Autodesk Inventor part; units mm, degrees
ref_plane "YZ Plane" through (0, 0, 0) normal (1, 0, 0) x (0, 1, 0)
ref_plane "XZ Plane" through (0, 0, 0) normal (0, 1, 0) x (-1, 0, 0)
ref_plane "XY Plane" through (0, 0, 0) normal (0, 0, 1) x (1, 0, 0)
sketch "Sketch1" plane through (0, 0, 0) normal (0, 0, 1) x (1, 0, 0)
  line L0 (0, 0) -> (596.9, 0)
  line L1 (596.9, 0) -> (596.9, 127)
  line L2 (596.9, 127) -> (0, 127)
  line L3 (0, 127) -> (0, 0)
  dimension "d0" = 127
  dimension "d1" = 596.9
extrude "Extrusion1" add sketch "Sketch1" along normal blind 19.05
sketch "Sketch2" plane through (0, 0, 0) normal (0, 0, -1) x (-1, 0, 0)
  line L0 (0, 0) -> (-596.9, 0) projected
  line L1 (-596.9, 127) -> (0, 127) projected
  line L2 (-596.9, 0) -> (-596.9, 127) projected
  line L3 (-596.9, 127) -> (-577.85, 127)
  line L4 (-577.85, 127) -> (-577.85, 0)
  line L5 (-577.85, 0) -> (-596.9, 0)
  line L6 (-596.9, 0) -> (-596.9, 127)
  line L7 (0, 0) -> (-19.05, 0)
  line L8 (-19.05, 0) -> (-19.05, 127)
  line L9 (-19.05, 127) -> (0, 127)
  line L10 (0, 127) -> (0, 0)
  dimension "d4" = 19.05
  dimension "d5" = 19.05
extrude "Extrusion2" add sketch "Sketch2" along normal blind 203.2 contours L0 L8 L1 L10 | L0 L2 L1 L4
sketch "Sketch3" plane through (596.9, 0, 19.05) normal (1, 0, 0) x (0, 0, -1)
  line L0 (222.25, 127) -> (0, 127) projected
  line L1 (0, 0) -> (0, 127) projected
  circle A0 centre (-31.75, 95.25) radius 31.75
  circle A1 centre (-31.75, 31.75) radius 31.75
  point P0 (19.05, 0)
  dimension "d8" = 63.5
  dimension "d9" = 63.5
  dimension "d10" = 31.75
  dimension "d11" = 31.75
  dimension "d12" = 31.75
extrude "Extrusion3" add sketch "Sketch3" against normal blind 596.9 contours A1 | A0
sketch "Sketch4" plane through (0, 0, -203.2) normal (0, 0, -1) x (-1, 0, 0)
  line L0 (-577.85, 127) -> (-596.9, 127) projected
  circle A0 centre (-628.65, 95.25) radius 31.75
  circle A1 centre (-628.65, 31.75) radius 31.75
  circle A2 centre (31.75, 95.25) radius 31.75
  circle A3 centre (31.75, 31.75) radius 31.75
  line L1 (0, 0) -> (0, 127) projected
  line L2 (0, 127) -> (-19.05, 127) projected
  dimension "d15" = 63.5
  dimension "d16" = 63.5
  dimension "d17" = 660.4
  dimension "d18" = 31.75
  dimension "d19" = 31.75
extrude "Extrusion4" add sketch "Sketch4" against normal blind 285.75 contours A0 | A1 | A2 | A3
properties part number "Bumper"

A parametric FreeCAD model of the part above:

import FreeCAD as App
import Part
import Sketcher

V = App.Vector
Q = App.Units.Quantity

doc = App.newDocument("Part")
params = doc.addObject("Spreadsheet::Sheet", "Params")
for row, (alias, value) in enumerate([
    ("sketch1_height", "5 in"),
    ("sketch1_width", "23.5 in"),
    ("pad1_length", "0.75 in"),
    ("sketch2_width", "0.75 in"),
    ("sketch2_height", "5 in"),
    ("pad2_length", "8 in"),
    ("sketch3_diameter", "2.5 in"),
    ("pad3_length", "23.5 in"),
    ("sketch4_diameter", "2.5 in"),
    ("pad4_length", "11.25 in"),
], start=1):
    params.set(f"A{row}", alias)
    params.set(f"B{row}", "=" + value)
    params.setAlias(f"B{row}", alias)

body = doc.addObject("PartDesign::Body", "Body")
body.AllowCompound = True

sketch1 = doc.addObject("Sketcher::SketchObject", "Sketch")
body.addObject(sketch1)
sketch1.AttachmentSupport = (doc.XY_Plane, [""])
sketch1.MapMode = "FlatFace"
sketch1.addGeometry(Part.LineSegment(V(0, 127, 0), V(0, 0, 0)), False)
sketch1.addGeometry(Part.LineSegment(V(0, 0, 0), V(597, 0, 0)), False)
sketch1.addGeometry(Part.LineSegment(V(597, 0, 0), V(597, 127, 0)), False)
sketch1.addGeometry(Part.LineSegment(V(597, 127, 0), V(0, 127, 0)), False)
sketch1.addConstraint(Sketcher.Constraint("Coincident", 0, 2, 1, 1))
sketch1.addConstraint(Sketcher.Constraint("Coincident", 1, 2, 2, 1))
sketch1.addConstraint(Sketcher.Constraint("Coincident", 2, 2, 3, 1))
sketch1.addConstraint(Sketcher.Constraint("Coincident", 3, 2, 0, 1))
sketch1.addConstraint(Sketcher.Constraint("Vertical", 0))
sketch1.addConstraint(Sketcher.Constraint("Horizontal", 1))
sketch1.addConstraint(Sketcher.Constraint("Vertical", 2))
sketch1.addConstraint(Sketcher.Constraint("Horizontal", 3))
sketch1.addConstraint(Sketcher.Constraint("Coincident", 0, 2, -1, 1))
sketch1.addConstraint(Sketcher.Constraint("DistanceY", 0, 2, 0, 1, Q("5 in")))
sketch1.addConstraint(Sketcher.Constraint("DistanceX", 1, 1, 1, 2, Q("23.5 in")))
sketch1.setExpression("Constraints[9]", "Params.sketch1_height")
sketch1.setExpression("Constraints[10]", "Params.sketch1_width")
pad1 = doc.addObject("PartDesign::Pad", "Pad")
body.addObject(pad1)
pad1.Profile = sketch1
pad1.setExpression("Length", "Params.pad1_length")

sketch2 = doc.addObject("Sketcher::SketchObject", "Sketch001")
body.addObject(sketch2)
sketch2.AttachmentSupport = (doc.XY_Plane, [""])
sketch2.MapMode = "FlatFace"
sketch2.addGeometry(Part.LineSegment(V(19, 0, 0), V(0, 0, 0)), False)
sketch2.addGeometry(Part.LineSegment(V(0, 0, 0), V(0, 127, 0)), False)
sketch2.addGeometry(Part.LineSegment(V(0, 127, 0), V(19, 127, 0)), False)
sketch2.addGeometry(Part.LineSegment(V(19, 127, 0), V(19, 0, 0)), False)
sketch2.addGeometry(Part.LineSegment(V(597, 0, 0), V(578, 0, 0)), False)
sketch2.addGeometry(Part.LineSegment(V(578, 0, 0), V(578, 127, 0)), False)
sketch2.addGeometry(Part.LineSegment(V(578, 127, 0), V(597, 127, 0)), False)
sketch2.addGeometry(Part.LineSegment(V(597, 127, 0), V(597, 0, 0)), False)
sketch2.addConstraint(Sketcher.Constraint("Coincident", 0, 2, 1, 1))
sketch2.addConstraint(Sketcher.Constraint("Coincident", 1, 2, 2, 1))
sketch2.addConstraint(Sketcher.Constraint("Coincident", 2, 2, 3, 1))
sketch2.addConstraint(Sketcher.Constraint("Coincident", 3, 2, 0, 1))
sketch2.addConstraint(Sketcher.Constraint("Coincident", 4, 2, 5, 1))
sketch2.addConstraint(Sketcher.Constraint("Coincident", 5, 2, 6, 1))
sketch2.addConstraint(Sketcher.Constraint("Coincident", 6, 2, 7, 1))
sketch2.addConstraint(Sketcher.Constraint("Coincident", 7, 2, 4, 1))
sketch2.addConstraint(Sketcher.Constraint("Horizontal", 0))
sketch2.addConstraint(Sketcher.Constraint("Vertical", 1))
sketch2.addConstraint(Sketcher.Constraint("Horizontal", 2))
sketch2.addConstraint(Sketcher.Constraint("Vertical", 3))
sketch2.addConstraint(Sketcher.Constraint("Horizontal", 4))
sketch2.addConstraint(Sketcher.Constraint("Vertical", 5))
sketch2.addConstraint(Sketcher.Constraint("Horizontal", 6))
sketch2.addConstraint(Sketcher.Constraint("Vertical", 7))
sketch2.addConstraint(Sketcher.Constraint("Coincident", 0, 2, -1, 1))
sketch2.addConstraint(Sketcher.Constraint("PointOnObject", 4, 2, -1))
sketch2.addConstraint(Sketcher.Constraint("Horizontal", 2, 2, 5, 2))
sketch2.addConstraint(Sketcher.Constraint("Equal", 2, 4))
sketch2.addConstraint(Sketcher.Constraint("DistanceX", 0, 2, 0, 1, Q("0.75 in")))
sketch2.addConstraint(Sketcher.Constraint("DistanceY", 1, 1, 1, 2, Q("5 in")))
sketch2.addConstraint(Sketcher.Constraint("DistanceX", 3, 2, 4, 2, Q("22 in")))
sketch2.setExpression("Constraints[20]", "Params.sketch2_width")
sketch2.setExpression("Constraints[21]", "Params.sketch2_height")
pad2 = doc.addObject("PartDesign::Pad", "Pad001")
body.addObject(pad2)
pad2.Profile = sketch2
pad2.setExpression("Length", "Params.pad2_length")
pad2.Reversed = True

sketch3 = doc.addObject("Sketcher::SketchObject", "Sketch002")
body.addObject(sketch3)
sketch3.AttachmentSupport = (doc.YZ_Plane, [""])
sketch3.MapMode = "FlatFace"
sketch3.AttachmentOffset = App.Placement(V(0, 0, 23.5 * 25.4), App.Rotation())
sketch3.addGeometry(Part.Circle(V(32, 51, 0), V(0, 0, 1), 32), False)
sketch3.addGeometry(Part.Circle(V(95, 51, 0), V(0, 0, 1), 32), False)
sketch3.addConstraint(Sketcher.Constraint("Equal", 0, 1))
sketch3.addConstraint(Sketcher.Constraint("Horizontal", 0, 3, 1, 3))
sketch3.addConstraint(Sketcher.Constraint("Diameter", 0, Q("2.5 in")))
sketch3.addConstraint(Sketcher.Constraint("DistanceX", 0, 3, 1, 3, Q("2.5 in")))
sketch3.addConstraint(Sketcher.Constraint("DistanceX", -1, 1, 0, 3, Q("1.25 in")))
sketch3.addConstraint(Sketcher.Constraint("DistanceY", -1, 1, 0, 3, Q("2 in")))
sketch3.setExpression("Constraints[2]", "Params.sketch3_diameter")
pad3 = doc.addObject("PartDesign::Pad", "Pad002")
body.addObject(pad3)
pad3.Profile = sketch3
pad3.setExpression("Length", "Params.pad3_length")
pad3.Reversed = True

sketch4 = doc.addObject("Sketcher::SketchObject", "Sketch003")
body.addObject(sketch4)
sketch4.AttachmentSupport = (doc.XY_Plane, [""])
sketch4.MapMode = "FlatFace"
sketch4.AttachmentOffset = App.Placement(V(0, 0, -8 * 25.4), App.Rotation())
sketch4.addGeometry(Part.Circle(V(629, 95, 0), V(0, 0, 1), 32), False)
sketch4.addGeometry(Part.Circle(V(629, 32, 0), V(0, 0, 1), 32), False)
sketch4.addGeometry(Part.Circle(V(-32, 95, 0), V(0, 0, 1), 32), False)
sketch4.addGeometry(Part.Circle(V(-32, 32, 0), V(0, 0, 1), 32), False)
sketch4.addConstraint(Sketcher.Constraint("Equal", 0, 1))
sketch4.addConstraint(Sketcher.Constraint("Equal", 1, 2))
sketch4.addConstraint(Sketcher.Constraint("Equal", 2, 3))
sketch4.addConstraint(Sketcher.Constraint("Horizontal", 0, 3, 2, 3))
sketch4.addConstraint(Sketcher.Constraint("Horizontal", 1, 3, 3, 3))
sketch4.addConstraint(Sketcher.Constraint("Vertical", 0, 3, 1, 3))
sketch4.addConstraint(Sketcher.Constraint("Vertical", 2, 3, 3, 3))
sketch4.addConstraint(Sketcher.Constraint("Diameter", 0, Q("2.5 in")))
sketch4.addConstraint(Sketcher.Constraint("DistanceX", 2, 3, 0, 3, Q("26 in")))
sketch4.addConstraint(Sketcher.Constraint("DistanceY", 1, 3, 0, 3, Q("2.5 in")))
sketch4.addConstraint(Sketcher.Constraint("DistanceY", -1, 1, 1, 3, Q("1.25 in")))
sketch4.addConstraint(Sketcher.Constraint("DistanceX", 2, 3, -1, 1, Q("1.25 in")))
sketch4.setExpression("Constraints[7]", "Params.sketch4_diameter")
pad4 = doc.addObject("PartDesign::Pad", "Pad003")
body.addObject(pad4)
pad4.Profile = sketch4
pad4.setExpression("Length", "Params.pad4_length")

doc.recompute()
